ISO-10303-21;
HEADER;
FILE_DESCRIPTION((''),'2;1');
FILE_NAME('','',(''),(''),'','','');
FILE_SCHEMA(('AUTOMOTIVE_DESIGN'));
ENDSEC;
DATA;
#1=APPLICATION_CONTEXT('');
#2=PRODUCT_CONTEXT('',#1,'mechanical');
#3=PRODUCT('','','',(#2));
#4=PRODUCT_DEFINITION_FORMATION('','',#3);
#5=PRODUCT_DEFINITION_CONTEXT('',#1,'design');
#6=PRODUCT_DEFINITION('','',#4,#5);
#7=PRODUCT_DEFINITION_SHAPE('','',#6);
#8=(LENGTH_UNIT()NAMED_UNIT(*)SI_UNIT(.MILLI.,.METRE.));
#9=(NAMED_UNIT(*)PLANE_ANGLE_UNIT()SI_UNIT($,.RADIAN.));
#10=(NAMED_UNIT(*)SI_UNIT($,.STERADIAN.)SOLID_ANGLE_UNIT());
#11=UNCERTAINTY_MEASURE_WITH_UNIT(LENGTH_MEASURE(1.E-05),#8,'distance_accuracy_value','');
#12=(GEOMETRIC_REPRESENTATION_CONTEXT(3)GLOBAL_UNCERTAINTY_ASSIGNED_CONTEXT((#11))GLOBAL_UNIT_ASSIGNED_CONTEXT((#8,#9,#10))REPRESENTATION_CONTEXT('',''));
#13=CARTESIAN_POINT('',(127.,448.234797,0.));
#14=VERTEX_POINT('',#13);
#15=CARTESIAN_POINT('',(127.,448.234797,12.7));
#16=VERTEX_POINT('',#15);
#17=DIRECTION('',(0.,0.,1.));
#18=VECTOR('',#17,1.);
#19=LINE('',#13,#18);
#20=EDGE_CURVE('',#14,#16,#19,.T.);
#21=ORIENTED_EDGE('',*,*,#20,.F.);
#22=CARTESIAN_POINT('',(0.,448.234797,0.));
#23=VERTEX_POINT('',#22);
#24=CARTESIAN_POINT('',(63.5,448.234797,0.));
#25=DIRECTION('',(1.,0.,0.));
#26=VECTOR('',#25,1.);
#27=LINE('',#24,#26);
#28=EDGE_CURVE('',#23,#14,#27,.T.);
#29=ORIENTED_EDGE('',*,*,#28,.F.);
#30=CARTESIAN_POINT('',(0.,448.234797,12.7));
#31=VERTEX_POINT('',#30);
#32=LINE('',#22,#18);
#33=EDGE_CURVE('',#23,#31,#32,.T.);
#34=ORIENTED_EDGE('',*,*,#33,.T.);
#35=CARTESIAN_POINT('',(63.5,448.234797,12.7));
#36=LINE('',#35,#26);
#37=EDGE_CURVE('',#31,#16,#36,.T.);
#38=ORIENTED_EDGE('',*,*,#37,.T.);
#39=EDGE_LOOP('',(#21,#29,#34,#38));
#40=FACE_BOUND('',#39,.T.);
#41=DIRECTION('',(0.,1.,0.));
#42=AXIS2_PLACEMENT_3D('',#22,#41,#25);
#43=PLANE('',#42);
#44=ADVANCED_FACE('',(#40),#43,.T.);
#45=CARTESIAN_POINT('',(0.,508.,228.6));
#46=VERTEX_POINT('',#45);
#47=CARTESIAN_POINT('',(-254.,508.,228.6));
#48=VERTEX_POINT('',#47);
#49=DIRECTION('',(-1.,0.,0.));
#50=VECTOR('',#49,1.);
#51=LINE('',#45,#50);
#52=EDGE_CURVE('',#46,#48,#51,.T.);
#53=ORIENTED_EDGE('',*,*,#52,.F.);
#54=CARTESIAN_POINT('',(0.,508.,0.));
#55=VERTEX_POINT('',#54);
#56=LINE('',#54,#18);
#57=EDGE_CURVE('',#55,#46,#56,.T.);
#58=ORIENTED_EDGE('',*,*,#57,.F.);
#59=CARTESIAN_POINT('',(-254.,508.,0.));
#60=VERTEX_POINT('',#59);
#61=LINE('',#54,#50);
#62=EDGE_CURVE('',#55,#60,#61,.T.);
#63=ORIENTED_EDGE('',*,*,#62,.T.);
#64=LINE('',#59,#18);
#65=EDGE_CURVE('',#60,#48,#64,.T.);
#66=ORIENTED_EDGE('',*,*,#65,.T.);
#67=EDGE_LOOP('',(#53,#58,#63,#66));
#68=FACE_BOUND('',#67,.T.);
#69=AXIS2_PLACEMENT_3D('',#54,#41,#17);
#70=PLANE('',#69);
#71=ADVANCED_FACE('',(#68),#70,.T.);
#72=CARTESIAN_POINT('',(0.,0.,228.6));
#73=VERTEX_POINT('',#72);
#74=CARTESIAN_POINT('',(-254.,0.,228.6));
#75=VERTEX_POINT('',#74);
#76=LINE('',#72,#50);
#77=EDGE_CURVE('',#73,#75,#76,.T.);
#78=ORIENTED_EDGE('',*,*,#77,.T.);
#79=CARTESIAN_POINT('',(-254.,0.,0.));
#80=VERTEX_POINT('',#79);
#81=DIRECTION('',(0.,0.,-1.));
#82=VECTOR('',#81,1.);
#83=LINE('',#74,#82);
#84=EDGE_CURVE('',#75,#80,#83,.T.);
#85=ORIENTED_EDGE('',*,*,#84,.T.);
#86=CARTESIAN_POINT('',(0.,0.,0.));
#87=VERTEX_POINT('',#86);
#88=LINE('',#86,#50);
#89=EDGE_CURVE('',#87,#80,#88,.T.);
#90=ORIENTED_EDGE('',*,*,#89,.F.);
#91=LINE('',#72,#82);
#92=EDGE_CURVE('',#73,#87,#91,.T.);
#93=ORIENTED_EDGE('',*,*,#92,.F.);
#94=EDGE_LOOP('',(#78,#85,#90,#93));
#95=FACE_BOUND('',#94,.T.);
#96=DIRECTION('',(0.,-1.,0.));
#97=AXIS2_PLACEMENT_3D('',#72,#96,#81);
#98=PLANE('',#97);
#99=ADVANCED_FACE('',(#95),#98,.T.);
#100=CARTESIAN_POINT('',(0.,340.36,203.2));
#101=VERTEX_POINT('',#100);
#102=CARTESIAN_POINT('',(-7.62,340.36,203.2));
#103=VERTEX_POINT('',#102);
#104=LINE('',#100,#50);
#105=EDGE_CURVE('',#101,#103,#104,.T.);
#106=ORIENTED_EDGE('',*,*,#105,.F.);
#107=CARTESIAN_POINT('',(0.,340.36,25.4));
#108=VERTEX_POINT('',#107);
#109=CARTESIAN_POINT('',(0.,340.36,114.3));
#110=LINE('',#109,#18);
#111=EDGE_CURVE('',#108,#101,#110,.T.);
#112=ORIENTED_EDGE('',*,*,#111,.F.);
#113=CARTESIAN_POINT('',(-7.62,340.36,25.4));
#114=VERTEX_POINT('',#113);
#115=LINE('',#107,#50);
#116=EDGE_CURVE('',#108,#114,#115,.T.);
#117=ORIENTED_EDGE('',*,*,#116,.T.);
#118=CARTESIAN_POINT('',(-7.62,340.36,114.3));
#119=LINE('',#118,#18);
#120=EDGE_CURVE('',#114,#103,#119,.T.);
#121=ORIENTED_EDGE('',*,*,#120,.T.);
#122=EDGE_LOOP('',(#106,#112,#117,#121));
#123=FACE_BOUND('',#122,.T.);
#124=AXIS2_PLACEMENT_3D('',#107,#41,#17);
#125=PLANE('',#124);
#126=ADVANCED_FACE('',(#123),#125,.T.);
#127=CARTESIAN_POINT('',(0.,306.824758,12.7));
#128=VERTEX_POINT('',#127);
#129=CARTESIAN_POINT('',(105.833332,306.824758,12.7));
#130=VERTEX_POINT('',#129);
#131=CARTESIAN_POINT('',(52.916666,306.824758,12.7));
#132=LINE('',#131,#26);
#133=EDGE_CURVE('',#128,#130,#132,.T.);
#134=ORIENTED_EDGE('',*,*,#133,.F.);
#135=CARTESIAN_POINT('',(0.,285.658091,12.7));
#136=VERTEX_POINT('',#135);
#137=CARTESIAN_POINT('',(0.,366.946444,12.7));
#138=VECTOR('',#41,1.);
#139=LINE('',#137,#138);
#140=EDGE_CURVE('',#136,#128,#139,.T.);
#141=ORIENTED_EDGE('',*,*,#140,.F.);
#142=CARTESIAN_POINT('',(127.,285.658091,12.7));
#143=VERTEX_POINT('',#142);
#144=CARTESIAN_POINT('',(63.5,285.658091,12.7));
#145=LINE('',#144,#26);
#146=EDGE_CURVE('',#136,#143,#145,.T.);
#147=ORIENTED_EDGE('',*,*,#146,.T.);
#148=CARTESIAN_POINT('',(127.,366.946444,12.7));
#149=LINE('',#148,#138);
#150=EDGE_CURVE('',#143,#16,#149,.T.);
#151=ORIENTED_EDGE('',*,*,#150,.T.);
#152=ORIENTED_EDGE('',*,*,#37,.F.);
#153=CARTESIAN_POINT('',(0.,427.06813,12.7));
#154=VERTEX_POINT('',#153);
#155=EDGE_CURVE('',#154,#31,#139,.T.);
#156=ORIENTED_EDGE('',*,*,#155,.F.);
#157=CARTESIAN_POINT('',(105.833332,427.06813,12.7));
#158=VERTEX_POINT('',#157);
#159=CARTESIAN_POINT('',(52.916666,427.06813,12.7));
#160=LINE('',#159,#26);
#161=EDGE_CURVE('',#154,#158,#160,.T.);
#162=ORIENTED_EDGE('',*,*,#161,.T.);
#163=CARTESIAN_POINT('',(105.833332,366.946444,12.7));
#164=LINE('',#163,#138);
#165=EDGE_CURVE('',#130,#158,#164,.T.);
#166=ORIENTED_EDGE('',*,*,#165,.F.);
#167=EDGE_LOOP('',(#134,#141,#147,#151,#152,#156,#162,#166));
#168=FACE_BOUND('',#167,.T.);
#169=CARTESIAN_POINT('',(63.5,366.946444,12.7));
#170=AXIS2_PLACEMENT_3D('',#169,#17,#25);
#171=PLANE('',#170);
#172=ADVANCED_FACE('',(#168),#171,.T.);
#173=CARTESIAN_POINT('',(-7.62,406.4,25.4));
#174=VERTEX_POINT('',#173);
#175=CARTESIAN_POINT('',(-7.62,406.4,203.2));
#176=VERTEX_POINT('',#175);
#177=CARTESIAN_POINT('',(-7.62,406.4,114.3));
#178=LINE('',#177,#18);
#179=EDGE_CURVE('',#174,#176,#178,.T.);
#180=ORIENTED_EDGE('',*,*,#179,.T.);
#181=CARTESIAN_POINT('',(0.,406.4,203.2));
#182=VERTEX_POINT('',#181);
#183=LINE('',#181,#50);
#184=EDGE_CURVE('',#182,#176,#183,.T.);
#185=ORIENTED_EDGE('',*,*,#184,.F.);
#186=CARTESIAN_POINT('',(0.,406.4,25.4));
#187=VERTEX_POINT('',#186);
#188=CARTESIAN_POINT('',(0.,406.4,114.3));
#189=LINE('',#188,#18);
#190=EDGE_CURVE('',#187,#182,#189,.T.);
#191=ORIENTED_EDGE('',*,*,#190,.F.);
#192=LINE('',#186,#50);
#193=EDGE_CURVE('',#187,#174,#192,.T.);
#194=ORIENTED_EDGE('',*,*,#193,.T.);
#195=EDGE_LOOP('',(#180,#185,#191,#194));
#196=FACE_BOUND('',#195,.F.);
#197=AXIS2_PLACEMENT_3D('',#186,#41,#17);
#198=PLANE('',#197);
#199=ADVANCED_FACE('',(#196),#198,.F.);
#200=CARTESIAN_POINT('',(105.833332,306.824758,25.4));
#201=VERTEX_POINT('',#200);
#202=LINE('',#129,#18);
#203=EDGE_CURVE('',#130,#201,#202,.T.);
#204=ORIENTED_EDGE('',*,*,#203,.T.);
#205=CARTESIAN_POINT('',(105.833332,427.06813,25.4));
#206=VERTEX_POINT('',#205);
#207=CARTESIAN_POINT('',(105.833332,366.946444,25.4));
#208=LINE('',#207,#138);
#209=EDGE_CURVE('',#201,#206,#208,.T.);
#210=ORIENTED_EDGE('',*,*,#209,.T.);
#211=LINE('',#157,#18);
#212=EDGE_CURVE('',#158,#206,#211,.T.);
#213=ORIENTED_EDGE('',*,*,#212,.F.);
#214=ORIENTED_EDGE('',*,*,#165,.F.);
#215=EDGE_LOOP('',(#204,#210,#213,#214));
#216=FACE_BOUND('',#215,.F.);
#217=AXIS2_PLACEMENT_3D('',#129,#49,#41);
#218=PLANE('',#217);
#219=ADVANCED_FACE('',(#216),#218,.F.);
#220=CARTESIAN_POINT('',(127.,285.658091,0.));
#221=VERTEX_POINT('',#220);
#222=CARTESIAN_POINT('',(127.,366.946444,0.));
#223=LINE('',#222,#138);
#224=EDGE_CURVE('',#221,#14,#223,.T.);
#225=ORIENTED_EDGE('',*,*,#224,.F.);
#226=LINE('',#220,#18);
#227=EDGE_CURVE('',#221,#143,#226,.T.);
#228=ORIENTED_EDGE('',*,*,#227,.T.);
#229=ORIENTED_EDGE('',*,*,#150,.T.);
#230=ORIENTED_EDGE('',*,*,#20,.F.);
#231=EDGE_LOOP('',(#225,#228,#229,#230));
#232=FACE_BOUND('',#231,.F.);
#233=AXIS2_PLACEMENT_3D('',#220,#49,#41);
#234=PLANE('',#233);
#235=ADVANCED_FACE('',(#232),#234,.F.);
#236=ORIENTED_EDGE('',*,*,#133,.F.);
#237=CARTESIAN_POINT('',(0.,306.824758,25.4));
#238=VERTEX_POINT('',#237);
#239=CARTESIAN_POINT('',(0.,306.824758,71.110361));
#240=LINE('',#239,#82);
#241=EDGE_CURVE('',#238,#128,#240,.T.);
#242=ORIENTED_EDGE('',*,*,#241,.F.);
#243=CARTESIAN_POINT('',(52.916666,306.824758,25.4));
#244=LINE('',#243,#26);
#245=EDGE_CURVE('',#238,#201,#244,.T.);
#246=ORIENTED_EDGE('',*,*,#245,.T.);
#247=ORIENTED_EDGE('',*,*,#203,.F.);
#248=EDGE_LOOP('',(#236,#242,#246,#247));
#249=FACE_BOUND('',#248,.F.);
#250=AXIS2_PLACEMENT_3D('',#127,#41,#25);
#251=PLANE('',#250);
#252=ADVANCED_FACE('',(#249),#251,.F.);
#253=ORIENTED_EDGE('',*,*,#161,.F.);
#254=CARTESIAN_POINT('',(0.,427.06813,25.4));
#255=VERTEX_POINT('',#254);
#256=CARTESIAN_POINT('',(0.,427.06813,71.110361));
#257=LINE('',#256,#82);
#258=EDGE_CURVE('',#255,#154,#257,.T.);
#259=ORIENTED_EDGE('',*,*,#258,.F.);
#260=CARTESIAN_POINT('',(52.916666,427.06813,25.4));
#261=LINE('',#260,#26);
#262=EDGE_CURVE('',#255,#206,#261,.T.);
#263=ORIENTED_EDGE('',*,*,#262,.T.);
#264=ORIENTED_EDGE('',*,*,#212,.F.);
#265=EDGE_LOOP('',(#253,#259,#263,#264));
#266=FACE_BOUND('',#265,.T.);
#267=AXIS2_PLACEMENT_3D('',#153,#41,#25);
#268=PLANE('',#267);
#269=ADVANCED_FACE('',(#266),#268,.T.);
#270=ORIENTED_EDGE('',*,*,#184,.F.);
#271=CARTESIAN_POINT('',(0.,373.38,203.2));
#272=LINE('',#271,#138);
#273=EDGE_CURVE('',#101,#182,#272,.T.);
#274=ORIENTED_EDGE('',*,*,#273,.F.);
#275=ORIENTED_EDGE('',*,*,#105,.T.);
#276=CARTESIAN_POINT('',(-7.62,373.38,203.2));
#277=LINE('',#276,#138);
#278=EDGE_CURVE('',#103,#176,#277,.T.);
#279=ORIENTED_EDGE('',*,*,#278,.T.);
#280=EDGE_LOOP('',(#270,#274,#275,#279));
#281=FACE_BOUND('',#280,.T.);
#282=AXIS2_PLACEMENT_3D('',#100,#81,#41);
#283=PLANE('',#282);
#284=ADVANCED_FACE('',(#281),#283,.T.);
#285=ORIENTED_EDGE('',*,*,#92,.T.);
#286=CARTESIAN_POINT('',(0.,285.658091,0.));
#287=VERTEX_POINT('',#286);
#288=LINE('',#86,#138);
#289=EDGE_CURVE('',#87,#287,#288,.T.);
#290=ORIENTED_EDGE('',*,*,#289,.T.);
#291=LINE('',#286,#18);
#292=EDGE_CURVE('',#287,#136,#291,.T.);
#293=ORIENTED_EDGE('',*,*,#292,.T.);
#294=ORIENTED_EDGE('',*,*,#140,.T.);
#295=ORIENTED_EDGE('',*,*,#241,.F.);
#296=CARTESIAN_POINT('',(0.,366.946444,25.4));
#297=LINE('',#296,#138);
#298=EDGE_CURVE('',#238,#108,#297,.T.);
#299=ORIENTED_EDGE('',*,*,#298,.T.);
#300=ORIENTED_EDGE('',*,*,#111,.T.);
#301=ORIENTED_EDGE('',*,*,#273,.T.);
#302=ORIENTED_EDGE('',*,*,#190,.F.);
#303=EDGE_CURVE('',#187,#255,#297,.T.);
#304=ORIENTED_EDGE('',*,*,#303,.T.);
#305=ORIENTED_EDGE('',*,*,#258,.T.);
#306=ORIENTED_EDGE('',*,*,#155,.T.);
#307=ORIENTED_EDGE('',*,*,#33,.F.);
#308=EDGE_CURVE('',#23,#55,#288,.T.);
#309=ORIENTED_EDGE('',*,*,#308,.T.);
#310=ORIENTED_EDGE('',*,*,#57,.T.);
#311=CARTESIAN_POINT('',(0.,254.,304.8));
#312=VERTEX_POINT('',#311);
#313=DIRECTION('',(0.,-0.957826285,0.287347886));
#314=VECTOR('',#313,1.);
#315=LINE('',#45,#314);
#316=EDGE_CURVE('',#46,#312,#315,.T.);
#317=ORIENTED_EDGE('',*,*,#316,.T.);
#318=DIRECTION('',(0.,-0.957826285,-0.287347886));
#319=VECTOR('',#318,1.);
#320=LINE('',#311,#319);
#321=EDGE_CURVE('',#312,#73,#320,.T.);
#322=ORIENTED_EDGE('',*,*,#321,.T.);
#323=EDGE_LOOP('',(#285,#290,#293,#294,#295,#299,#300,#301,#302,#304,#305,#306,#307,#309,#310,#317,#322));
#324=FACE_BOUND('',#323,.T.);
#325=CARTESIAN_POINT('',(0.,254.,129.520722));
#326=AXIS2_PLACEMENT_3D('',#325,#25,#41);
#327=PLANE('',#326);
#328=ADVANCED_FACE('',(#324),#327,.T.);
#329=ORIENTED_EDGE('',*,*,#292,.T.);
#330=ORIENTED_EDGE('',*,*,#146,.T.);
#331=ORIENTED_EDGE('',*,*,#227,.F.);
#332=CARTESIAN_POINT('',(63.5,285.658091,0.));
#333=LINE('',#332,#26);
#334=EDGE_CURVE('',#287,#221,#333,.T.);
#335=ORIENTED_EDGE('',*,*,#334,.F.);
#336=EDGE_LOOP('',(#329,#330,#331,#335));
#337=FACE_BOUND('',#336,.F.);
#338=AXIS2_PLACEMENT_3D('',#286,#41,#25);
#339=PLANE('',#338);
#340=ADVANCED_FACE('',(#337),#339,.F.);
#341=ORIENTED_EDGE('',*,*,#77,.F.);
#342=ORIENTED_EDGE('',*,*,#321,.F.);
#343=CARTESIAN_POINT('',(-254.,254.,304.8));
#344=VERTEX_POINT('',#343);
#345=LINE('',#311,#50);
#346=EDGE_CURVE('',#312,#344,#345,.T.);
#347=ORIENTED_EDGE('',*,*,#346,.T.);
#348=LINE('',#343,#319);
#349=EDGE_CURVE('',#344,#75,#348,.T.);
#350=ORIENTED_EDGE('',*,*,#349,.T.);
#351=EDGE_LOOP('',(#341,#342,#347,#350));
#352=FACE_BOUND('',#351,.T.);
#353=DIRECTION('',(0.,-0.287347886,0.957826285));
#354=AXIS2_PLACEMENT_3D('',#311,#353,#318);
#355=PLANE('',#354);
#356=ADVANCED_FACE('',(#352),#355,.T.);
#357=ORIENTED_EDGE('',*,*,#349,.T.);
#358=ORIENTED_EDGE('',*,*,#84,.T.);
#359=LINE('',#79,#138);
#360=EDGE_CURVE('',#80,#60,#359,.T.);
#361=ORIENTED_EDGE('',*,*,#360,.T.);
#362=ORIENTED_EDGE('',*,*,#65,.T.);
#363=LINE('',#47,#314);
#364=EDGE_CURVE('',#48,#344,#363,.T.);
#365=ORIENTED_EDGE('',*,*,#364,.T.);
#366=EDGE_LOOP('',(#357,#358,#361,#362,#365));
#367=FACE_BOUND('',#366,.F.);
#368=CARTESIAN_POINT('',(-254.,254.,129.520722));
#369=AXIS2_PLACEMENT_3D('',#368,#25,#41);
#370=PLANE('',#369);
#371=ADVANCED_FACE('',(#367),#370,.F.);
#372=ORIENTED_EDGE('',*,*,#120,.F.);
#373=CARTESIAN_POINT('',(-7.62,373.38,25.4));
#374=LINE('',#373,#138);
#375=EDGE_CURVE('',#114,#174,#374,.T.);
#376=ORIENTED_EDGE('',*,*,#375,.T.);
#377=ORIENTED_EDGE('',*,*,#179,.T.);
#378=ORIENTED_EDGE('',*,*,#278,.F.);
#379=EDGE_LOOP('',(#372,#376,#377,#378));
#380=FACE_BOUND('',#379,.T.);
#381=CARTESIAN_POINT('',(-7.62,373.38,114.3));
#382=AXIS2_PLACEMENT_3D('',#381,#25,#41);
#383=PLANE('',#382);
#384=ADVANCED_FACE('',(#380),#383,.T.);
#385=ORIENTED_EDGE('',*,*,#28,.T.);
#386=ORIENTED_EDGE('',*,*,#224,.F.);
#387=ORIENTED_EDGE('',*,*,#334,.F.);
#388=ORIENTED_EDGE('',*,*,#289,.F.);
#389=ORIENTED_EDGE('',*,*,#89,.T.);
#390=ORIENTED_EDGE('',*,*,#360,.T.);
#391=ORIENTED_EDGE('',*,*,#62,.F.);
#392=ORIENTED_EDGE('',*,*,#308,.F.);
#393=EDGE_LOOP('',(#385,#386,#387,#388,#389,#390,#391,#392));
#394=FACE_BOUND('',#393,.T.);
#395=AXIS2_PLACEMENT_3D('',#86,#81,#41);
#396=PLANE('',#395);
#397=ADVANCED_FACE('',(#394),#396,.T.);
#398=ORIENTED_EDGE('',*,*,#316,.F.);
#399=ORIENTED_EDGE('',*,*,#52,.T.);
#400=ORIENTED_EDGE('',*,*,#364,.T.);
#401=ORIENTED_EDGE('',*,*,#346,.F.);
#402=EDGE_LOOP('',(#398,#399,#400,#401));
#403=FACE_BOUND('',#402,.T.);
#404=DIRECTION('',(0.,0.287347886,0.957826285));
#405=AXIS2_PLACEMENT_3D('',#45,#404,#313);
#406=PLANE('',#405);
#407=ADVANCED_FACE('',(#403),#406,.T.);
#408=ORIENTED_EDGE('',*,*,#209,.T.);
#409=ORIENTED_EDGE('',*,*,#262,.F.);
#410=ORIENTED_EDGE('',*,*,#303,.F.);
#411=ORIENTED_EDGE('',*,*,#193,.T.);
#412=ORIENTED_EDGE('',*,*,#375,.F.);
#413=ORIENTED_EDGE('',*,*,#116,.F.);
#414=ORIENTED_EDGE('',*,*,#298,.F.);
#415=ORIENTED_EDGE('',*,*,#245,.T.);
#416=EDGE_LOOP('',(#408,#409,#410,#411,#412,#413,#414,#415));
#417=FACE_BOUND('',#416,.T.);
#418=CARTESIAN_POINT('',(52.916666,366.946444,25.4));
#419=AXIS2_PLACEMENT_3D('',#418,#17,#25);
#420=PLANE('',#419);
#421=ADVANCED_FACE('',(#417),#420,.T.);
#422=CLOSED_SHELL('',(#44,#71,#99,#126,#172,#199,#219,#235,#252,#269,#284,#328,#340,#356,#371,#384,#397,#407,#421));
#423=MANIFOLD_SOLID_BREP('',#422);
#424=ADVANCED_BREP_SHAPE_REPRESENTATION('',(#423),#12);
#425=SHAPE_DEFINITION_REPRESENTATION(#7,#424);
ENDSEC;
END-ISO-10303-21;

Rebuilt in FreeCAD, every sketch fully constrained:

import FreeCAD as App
import Part
import Sketcher
Q = App.Units.Quantity


def add_polygon(sketch, points):
    """Adds a closed chain of lines whose ends are joined by coincident constraints."""
    first, n = sketch.GeometryCount, len(points)
    for a, b in zip(points, points[1:] + points[:1]):
        sketch.addGeometry(Part.LineSegment(App.Vector(*a, 0), App.Vector(*b, 0)), False)
    for i in range(n):
        sketch.addConstraint(Sketcher.Constraint("Coincident", first + i, 2, first + (i + 1) % n, 1))

doc = App.newDocument("Part")
body = doc.addObject("PartDesign::Body", "Body")

sketch1 = body.newObject("Sketcher::SketchObject", "Sketch")
sketch1.AttachmentSupport = (doc.getObject("XY_Plane"), [""])
sketch1.MapMode = "FlatFace"
add_polygon(sketch1, [(0, 448), (0, 286), (127, 286), (127, 448)])
sketch1.addConstraint(Sketcher.Constraint("Vertical", 0))
sketch1.addConstraint(Sketcher.Constraint("Horizontal", 1))
sketch1.addConstraint(Sketcher.Constraint("Vertical", 2))
sketch1.addConstraint(Sketcher.Constraint("Horizontal", 3))
sketch1.addConstraint(Sketcher.Constraint("PointOnObject", 0, 2, -2))
sketch1.addConstraint(Sketcher.Constraint("DistanceX", 1, 1, 1, 2, Q("5 in")))
sketch1.addConstraint(Sketcher.Constraint("DistanceY", 0, 2, 0, 1, Q("162.576706 mm")))
sketch1.addConstraint(Sketcher.Constraint("DistanceY", -1, 1, 0, 2, Q("285.658091 mm")))
pad1 = body.newObject("PartDesign::Pad", "Pad")
pad1.Profile = sketch1
pad1.Length = Q("0.5 in")

sketch2 = body.newObject("Sketcher::SketchObject", "Sketch001")
sketch2.AttachmentSupport = (doc.getObject("XY_Plane"), [""])
sketch2.MapMode = "FlatFace"
sketch2.AttachmentOffset = App.Placement(App.Vector(0, 0, 0.5 * 25.4), App.Rotation())
add_polygon(sketch2, [(0, 427), (0, 307), (106, 307), (106, 427)])
sketch2.addConstraint(Sketcher.Constraint("Vertical", 0))
sketch2.addConstraint(Sketcher.Constraint("Horizontal", 1))
sketch2.addConstraint(Sketcher.Constraint("Vertical", 2))
sketch2.addConstraint(Sketcher.Constraint("Horizontal", 3))
sketch2.addConstraint(Sketcher.Constraint("PointOnObject", 0, 2, -2))
sketch2.addConstraint(Sketcher.Constraint("DistanceX", 1, 1, 1, 2, Q("105.833333 mm")))
sketch2.addConstraint(Sketcher.Constraint("DistanceY", 0, 2, 0, 1, Q("120.243372 mm")))
sketch2.addConstraint(Sketcher.Constraint("DistanceY", -1, 1, 2, 2, Q("427.06813 mm")))
pad2 = body.newObject("PartDesign::Pad", "Pad001")
pad2.Profile = sketch2
pad2.Length = Q("0.5 in")

sketch3 = body.newObject("Sketcher::SketchObject", "Sketch002")
sketch3.AttachmentSupport = (doc.getObject("YZ_Plane"), [""])
sketch3.MapMode = "FlatFace"
add_polygon(sketch3, [(0, 229), (0, 0), (508, 0), (508, 229), (254, 305)])
sketch3.addConstraint(Sketcher.Constraint("Vertical", 0))
sketch3.addConstraint(Sketcher.Constraint("Horizontal", 1))
sketch3.addConstraint(Sketcher.Constraint("Vertical", 2))
sketch3.addConstraint(Sketcher.Constraint("Coincident", 0, 2, -1, 1))
sketch3.addConstraint(Sketcher.Constraint("Horizontal", 2, 2, 4, 2))
sketch3.addConstraint(Sketcher.Constraint("Equal", 3, 4))
sketch3.addConstraint(Sketcher.Constraint("DistanceX", 1, 1, 1, 2, Q("20 in")))
sketch3.addConstraint(Sketcher.Constraint("DistanceY", 0, 2, 0, 1, Q("9 in")))
sketch3.addConstraint(Sketcher.Constraint("DistanceY", -1, 1, 3, 2, Q("12 in")))
pad3 = body.newObject("PartDesign::Pad", "Pad002")
pad3.Profile = sketch3
pad3.Length = Q("10 in")
pad3.Reversed = True

sketch4 = body.newObject("Sketcher::SketchObject", "Sketch003")
sketch4.AttachmentSupport = (doc.getObject("YZ_Plane"), [""])
sketch4.MapMode = "FlatFace"
add_polygon(sketch4, [(340, 203), (340, 25), (406, 25), (406, 203)])
sketch4.addConstraint(Sketcher.Constraint("Vertical", 0))
sketch4.addConstraint(Sketcher.Constraint("Horizontal", 1))
sketch4.addConstraint(Sketcher.Constraint("Vertical", 2))
sketch4.addConstraint(Sketcher.Constraint("Horizontal", 3))
sketch4.addConstraint(Sketcher.Constraint("DistanceY", 0, 2, 0, 1, Q("7 in")))
sketch4.addConstraint(Sketcher.Constraint("DistanceX", 1, 1, 1, 2, Q("2.6 in")))
sketch4.addConstraint(Sketcher.Constraint("DistanceY", -1, 1, 0, 2, Q("1 in")))
sketch4.addConstraint(Sketcher.Constraint("DistanceX", -1, 1, 1, 2, Q("16 in")))
pocket1 = body.newObject("PartDesign::Pocket", "Pocket")
pocket1.Profile = sketch4
pocket1.Length = Q("0.3 in")

doc.recompute()
